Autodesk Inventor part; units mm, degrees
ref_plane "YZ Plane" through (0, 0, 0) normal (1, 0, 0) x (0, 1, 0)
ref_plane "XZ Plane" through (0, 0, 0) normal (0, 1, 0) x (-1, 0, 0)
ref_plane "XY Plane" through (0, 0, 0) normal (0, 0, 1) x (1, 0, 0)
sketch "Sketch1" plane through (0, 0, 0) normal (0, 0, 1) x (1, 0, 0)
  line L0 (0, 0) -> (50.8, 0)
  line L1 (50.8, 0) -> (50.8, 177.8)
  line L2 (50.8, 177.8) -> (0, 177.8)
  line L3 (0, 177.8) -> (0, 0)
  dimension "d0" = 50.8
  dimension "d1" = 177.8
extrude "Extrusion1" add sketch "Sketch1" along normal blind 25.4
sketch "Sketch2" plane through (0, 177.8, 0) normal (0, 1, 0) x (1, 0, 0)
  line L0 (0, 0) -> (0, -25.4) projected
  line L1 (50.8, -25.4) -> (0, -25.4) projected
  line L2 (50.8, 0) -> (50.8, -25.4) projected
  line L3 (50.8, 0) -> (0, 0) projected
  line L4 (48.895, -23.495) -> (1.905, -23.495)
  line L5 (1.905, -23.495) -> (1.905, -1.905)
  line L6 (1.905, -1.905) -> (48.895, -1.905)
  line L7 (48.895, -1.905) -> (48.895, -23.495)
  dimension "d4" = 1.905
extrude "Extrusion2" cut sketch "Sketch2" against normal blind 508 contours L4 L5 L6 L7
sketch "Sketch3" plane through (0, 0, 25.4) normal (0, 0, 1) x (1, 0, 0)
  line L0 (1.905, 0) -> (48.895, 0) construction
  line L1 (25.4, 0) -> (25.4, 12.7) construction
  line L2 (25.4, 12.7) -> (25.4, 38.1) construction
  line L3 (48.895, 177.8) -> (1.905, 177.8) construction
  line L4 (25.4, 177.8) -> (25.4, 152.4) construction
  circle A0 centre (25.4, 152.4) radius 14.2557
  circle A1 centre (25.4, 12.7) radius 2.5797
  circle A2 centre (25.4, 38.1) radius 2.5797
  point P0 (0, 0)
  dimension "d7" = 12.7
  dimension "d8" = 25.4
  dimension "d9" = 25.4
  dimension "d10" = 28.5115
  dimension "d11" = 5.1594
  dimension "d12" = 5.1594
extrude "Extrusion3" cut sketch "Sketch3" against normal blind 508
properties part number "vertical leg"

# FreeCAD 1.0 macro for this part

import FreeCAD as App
import Part
import Sketcher
Q = App.Units.Quantity

doc = App.newDocument("Part")
body = doc.addObject("PartDesign::Body", "Body")

# Sketch on XY plane
sketch1 = doc.addObject("Sketcher::SketchObject", "Sketch")
body.addObject(sketch1)
sketch1.AttachmentSupport = (doc.XY_Plane, [""])
sketch1.MapMode = "FlatFace"
sketch1.addGeometry([
    Part.LineSegment(App.Vector(0, 178, 0), App.Vector(0, 0, 0)),
    Part.LineSegment(App.Vector(0, 0, 0), App.Vector(51, 0, 0)),
    Part.LineSegment(App.Vector(51, 0, 0), App.Vector(51, 178, 0)),
    Part.LineSegment(App.Vector(51, 178, 0), App.Vector(0, 178, 0)),
], False)
sketch1.addConstraint([
    Sketcher.Constraint("Coincident", 0, 2, 1, 1),
    Sketcher.Constraint("Coincident", 1, 2, 2, 1),
    Sketcher.Constraint("Coincident", 2, 2, 3, 1),
    Sketcher.Constraint("Coincident", 3, 2, 0, 1),
    Sketcher.Constraint("Vertical", 0),
    Sketcher.Constraint("Horizontal", 1),
    Sketcher.Constraint("Vertical", 2),
    Sketcher.Constraint("Horizontal", 3),
    Sketcher.Constraint("Coincident", 0, 2, -1, 1),
    Sketcher.Constraint("DistanceX", 1, 1, 1, 2, Q("2 in")),
    Sketcher.Constraint("DistanceY", 0, 2, 0, 1, Q("7 in")),
])
pad1 = doc.addObject("PartDesign::Pad", "Pad")
body.addObject(pad1)
pad1.Profile = sketch1
pad1.Length = Q("1 in")

# Sketch on XZ plane
sketch2 = doc.addObject("Sketcher::SketchObject", "Sketch001")
body.addObject(sketch2)
sketch2.AttachmentSupport = (doc.XZ_Plane, [""])
sketch2.MapMode = "FlatFace"
sketch2.AttachmentOffset = App.Placement(App.Vector(0, 0, -7 * 25.4), App.Rotation())
sketch2.addGeometry([
    Part.LineSegment(App.Vector(2, 23, 0), App.Vector(49, 23, 0)),
    Part.LineSegment(App.Vector(49, 23, 0), App.Vector(49, 2, 0)),
    Part.LineSegment(App.Vector(49, 2, 0), App.Vector(2, 2, 0)),
    Part.LineSegment(App.Vector(2, 2, 0), App.Vector(2, 23, 0)),
], False)
sketch2.addConstraint([
    Sketcher.Constraint("Coincident", 0, 2, 1, 1),
    Sketcher.Constraint("Coincident", 1, 2, 2, 1),
    Sketcher.Constraint("Coincident", 2, 2, 3, 1),
    Sketcher.Constraint("Coincident", 3, 2, 0, 1),
    Sketcher.Constraint("Horizontal", 0),
    Sketcher.Constraint("Vertical", 1),
    Sketcher.Constraint("Horizontal", 2),
    Sketcher.Constraint("Vertical", 3),
    Sketcher.Constraint("DistanceY", -1, 1, 1, 2, Q("0.075 in")),
    Sketcher.Constraint("DistanceX", -1, 1, 2, 2, Q("0.075 in")),
    Sketcher.Constraint("DistanceX", 0, 1, 0, 2, Q("1.85 in")),
    Sketcher.Constraint("DistanceY", 1, 2, 1, 1, Q("0.85 in")),
])
pocket1 = doc.addObject("PartDesign::Pocket", "Pocket")
body.addObject(pocket1)
pocket1.Profile = sketch2
pocket1.Length = Q("20 in")
pocket1.Reversed = True

# Sketch on XY plane
sketch3 = doc.addObject("Sketcher::SketchObject", "Sketch002")
body.addObject(sketch3)
sketch3.AttachmentSupport = (doc.XY_Plane, [""])
sketch3.MapMode = "FlatFace"
sketch3.AttachmentOffset = App.Placement(App.Vector(0, 0, 1 * 25.4), App.Rotation())
sketch3.addGeometry([
    Part.Circle(App.Vector(25.4, 152.4, 0), App.Vector(0, 0, 1), 14.3),
    Part.Circle(App.Vector(25.4, 12.7, 0), App.Vector(0, 0, 1), 2.6),
    Part.Circle(App.Vector(25.4, 38.1, 0), App.Vector(0, 0, 1), 2.6),
], False)
sketch3.addConstraint([
    Sketcher.Constraint("Equal", 1, 2),
    Sketcher.Constraint("Vertical", 0, 3, 1, 3),
    Sketcher.Constraint("Vertical", 1, 3, 2, 3),
    Sketcher.Constraint("Diameter", 1, Q("0.203126 in")),
    Sketcher.Constraint("DistanceX", -1, 1, 0, 3, Q("1 in")),
    Sketcher.Constraint("DistanceY", 1, 3, 2, 3, Q("1 in")),
    Sketcher.Constraint("Diameter", 0, Q("1.1225 in")),
    Sketcher.Constraint("DistanceY", -1, 1, 1, 3, Q("0.5 in")),
    Sketcher.Constraint("DistanceY", -1, 1, 0, 3, Q("6 in")),
])
pocket2 = doc.addObject("PartDesign::Pocket", "Pocket001")
body.addObject(pocket2)
pocket2.Profile = sketch3
pocket2.Length = Q("20 in")

doc.recompute()
